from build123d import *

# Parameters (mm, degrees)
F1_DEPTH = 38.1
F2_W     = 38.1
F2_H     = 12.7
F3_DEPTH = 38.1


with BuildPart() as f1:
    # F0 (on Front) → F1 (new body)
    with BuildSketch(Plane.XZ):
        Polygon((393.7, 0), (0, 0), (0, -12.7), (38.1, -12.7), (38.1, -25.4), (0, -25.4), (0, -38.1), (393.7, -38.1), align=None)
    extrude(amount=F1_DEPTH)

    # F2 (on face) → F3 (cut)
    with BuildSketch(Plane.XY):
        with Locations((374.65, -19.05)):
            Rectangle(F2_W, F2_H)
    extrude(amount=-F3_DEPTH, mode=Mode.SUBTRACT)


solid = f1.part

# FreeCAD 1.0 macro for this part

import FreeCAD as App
import Part
import Sketcher
from FreeCAD import Vector
Q = App.Units.Quantity


def add_polygon(sketch, points):
    """Adds a closed chain of lines whose ends are joined by coincident constraints."""
    first, n = sketch.GeometryCount, len(points)
    for a, b in zip(points, points[1:] + points[:1]):
        sketch.addGeometry(Part.LineSegment(App.Vector(*a, 0), App.Vector(*b, 0)), False)
    for i in range(n):
        sketch.addConstraint(Sketcher.Constraint("Coincident", first + i, 2, first + (i + 1) % n, 1))

doc = App.newDocument("Part")
params = doc.addObject("Spreadsheet::Sheet", "Params")
for row, (alias, value) in enumerate([
    ("sketch1_width", "15.5 in"),
    ("sketch1_width2", "1.5 in"),
    ("pad1_length", "1.5 in"),
    ("sketch2_width", "1.5 in"),
    ("sketch2_height", "0.5 in"),
    ("pocket1_length", "1.5 in"),
], start=1):
    params.set(f"A{row}", alias)
    params.set(f"B{row}", "=" + value)
    params.setAlias(f"B{row}", alias)

body = doc.addObject("PartDesign::Body", "Body")

# Sketch on XZ plane
sketch1 = body.newObject("Sketcher::SketchObject", "Sketch")
sketch1.AttachmentSupport = (doc.getObject("XZ_Plane"), [""])
sketch1.MapMode = "FlatFace"
add_polygon(sketch1, [(394, 0), (0, 0), (0, -13), (38, -13), (38, -25), (0, -25), (0, -38), (394, -38)])  # lines 0-7
sketch1.addConstraint([
    Sketcher.Constraint("Horizontal", 0),
    Sketcher.Constraint("Vertical", 1),
    Sketcher.Constraint("Horizontal", 2),
    Sketcher.Constraint("Vertical", 3),
    Sketcher.Constraint("Horizontal", 4),
    Sketcher.Constraint("Vertical", 5),
    Sketcher.Constraint("Horizontal", 6),
    Sketcher.Constraint("Vertical", 7),
    Sketcher.Constraint("Coincident", 0, 2, -1, 1),
    Sketcher.Constraint("PointOnObject", 4, 2, -2),
    Sketcher.Constraint("Equal", 1, 3),
    Sketcher.Constraint("Equal", 3, 5),
    Sketcher.Constraint("Equal", 4, 7),
    Sketcher.Constraint("DistanceX", 0, 2, 0, 1, Q("15.5 in")),
    Sketcher.Constraint("DistanceX", 2, 1, 2, 2, Q("1.5 in")),
])
sketch1.setExpression("Constraints[21]", "Params.sketch1_width")
sketch1.setExpression("Constraints[22]", "Params.sketch1_width2")
pad1 = body.newObject("PartDesign::Pad", "Pad")
pad1.Profile = sketch1
pad1.setExpression("Length", "Params.pad1_length")

# Sketch on XY plane
sketch2 = body.newObject("Sketcher::SketchObject", "Sketch001")
sketch2.AttachmentSupport = (doc.getObject("XY_Plane"), [""])
sketch2.MapMode = "FlatFace"
add_polygon(sketch2, [(356, -13), (356, -25), (394, -25), (394, -13)])  # lines 0-3
sketch2.addConstraint([
    Sketcher.Constraint("Vertical", 0),
    Sketcher.Constraint("Horizontal", 1),
    Sketcher.Constraint("Vertical", 2),
    Sketcher.Constraint("Horizontal", 3),
    Sketcher.Constraint("DistanceX", 1, 1, 1, 2, Q("1.5 in")),
    Sketcher.Constraint("DistanceY", 0, 2, 0, 1, Q("0.5 in")),
    Sketcher.Constraint("DistanceX", -1, 1, 0, 2, Q("14 in")),
    Sketcher.Constraint("DistanceY", 0, 2, -1, 1, Q("1 in")),
])
sketch2.setExpression("Constraints[8]", "Params.sketch2_width")
sketch2.setExpression("Constraints[9]", "Params.sketch2_height")
pocket1 = body.newObject("PartDesign::Pocket", "Pocket")
pocket1.Profile = sketch2
pocket1.setExpression("Length", "Params.pocket1_length")

doc.recompute()
